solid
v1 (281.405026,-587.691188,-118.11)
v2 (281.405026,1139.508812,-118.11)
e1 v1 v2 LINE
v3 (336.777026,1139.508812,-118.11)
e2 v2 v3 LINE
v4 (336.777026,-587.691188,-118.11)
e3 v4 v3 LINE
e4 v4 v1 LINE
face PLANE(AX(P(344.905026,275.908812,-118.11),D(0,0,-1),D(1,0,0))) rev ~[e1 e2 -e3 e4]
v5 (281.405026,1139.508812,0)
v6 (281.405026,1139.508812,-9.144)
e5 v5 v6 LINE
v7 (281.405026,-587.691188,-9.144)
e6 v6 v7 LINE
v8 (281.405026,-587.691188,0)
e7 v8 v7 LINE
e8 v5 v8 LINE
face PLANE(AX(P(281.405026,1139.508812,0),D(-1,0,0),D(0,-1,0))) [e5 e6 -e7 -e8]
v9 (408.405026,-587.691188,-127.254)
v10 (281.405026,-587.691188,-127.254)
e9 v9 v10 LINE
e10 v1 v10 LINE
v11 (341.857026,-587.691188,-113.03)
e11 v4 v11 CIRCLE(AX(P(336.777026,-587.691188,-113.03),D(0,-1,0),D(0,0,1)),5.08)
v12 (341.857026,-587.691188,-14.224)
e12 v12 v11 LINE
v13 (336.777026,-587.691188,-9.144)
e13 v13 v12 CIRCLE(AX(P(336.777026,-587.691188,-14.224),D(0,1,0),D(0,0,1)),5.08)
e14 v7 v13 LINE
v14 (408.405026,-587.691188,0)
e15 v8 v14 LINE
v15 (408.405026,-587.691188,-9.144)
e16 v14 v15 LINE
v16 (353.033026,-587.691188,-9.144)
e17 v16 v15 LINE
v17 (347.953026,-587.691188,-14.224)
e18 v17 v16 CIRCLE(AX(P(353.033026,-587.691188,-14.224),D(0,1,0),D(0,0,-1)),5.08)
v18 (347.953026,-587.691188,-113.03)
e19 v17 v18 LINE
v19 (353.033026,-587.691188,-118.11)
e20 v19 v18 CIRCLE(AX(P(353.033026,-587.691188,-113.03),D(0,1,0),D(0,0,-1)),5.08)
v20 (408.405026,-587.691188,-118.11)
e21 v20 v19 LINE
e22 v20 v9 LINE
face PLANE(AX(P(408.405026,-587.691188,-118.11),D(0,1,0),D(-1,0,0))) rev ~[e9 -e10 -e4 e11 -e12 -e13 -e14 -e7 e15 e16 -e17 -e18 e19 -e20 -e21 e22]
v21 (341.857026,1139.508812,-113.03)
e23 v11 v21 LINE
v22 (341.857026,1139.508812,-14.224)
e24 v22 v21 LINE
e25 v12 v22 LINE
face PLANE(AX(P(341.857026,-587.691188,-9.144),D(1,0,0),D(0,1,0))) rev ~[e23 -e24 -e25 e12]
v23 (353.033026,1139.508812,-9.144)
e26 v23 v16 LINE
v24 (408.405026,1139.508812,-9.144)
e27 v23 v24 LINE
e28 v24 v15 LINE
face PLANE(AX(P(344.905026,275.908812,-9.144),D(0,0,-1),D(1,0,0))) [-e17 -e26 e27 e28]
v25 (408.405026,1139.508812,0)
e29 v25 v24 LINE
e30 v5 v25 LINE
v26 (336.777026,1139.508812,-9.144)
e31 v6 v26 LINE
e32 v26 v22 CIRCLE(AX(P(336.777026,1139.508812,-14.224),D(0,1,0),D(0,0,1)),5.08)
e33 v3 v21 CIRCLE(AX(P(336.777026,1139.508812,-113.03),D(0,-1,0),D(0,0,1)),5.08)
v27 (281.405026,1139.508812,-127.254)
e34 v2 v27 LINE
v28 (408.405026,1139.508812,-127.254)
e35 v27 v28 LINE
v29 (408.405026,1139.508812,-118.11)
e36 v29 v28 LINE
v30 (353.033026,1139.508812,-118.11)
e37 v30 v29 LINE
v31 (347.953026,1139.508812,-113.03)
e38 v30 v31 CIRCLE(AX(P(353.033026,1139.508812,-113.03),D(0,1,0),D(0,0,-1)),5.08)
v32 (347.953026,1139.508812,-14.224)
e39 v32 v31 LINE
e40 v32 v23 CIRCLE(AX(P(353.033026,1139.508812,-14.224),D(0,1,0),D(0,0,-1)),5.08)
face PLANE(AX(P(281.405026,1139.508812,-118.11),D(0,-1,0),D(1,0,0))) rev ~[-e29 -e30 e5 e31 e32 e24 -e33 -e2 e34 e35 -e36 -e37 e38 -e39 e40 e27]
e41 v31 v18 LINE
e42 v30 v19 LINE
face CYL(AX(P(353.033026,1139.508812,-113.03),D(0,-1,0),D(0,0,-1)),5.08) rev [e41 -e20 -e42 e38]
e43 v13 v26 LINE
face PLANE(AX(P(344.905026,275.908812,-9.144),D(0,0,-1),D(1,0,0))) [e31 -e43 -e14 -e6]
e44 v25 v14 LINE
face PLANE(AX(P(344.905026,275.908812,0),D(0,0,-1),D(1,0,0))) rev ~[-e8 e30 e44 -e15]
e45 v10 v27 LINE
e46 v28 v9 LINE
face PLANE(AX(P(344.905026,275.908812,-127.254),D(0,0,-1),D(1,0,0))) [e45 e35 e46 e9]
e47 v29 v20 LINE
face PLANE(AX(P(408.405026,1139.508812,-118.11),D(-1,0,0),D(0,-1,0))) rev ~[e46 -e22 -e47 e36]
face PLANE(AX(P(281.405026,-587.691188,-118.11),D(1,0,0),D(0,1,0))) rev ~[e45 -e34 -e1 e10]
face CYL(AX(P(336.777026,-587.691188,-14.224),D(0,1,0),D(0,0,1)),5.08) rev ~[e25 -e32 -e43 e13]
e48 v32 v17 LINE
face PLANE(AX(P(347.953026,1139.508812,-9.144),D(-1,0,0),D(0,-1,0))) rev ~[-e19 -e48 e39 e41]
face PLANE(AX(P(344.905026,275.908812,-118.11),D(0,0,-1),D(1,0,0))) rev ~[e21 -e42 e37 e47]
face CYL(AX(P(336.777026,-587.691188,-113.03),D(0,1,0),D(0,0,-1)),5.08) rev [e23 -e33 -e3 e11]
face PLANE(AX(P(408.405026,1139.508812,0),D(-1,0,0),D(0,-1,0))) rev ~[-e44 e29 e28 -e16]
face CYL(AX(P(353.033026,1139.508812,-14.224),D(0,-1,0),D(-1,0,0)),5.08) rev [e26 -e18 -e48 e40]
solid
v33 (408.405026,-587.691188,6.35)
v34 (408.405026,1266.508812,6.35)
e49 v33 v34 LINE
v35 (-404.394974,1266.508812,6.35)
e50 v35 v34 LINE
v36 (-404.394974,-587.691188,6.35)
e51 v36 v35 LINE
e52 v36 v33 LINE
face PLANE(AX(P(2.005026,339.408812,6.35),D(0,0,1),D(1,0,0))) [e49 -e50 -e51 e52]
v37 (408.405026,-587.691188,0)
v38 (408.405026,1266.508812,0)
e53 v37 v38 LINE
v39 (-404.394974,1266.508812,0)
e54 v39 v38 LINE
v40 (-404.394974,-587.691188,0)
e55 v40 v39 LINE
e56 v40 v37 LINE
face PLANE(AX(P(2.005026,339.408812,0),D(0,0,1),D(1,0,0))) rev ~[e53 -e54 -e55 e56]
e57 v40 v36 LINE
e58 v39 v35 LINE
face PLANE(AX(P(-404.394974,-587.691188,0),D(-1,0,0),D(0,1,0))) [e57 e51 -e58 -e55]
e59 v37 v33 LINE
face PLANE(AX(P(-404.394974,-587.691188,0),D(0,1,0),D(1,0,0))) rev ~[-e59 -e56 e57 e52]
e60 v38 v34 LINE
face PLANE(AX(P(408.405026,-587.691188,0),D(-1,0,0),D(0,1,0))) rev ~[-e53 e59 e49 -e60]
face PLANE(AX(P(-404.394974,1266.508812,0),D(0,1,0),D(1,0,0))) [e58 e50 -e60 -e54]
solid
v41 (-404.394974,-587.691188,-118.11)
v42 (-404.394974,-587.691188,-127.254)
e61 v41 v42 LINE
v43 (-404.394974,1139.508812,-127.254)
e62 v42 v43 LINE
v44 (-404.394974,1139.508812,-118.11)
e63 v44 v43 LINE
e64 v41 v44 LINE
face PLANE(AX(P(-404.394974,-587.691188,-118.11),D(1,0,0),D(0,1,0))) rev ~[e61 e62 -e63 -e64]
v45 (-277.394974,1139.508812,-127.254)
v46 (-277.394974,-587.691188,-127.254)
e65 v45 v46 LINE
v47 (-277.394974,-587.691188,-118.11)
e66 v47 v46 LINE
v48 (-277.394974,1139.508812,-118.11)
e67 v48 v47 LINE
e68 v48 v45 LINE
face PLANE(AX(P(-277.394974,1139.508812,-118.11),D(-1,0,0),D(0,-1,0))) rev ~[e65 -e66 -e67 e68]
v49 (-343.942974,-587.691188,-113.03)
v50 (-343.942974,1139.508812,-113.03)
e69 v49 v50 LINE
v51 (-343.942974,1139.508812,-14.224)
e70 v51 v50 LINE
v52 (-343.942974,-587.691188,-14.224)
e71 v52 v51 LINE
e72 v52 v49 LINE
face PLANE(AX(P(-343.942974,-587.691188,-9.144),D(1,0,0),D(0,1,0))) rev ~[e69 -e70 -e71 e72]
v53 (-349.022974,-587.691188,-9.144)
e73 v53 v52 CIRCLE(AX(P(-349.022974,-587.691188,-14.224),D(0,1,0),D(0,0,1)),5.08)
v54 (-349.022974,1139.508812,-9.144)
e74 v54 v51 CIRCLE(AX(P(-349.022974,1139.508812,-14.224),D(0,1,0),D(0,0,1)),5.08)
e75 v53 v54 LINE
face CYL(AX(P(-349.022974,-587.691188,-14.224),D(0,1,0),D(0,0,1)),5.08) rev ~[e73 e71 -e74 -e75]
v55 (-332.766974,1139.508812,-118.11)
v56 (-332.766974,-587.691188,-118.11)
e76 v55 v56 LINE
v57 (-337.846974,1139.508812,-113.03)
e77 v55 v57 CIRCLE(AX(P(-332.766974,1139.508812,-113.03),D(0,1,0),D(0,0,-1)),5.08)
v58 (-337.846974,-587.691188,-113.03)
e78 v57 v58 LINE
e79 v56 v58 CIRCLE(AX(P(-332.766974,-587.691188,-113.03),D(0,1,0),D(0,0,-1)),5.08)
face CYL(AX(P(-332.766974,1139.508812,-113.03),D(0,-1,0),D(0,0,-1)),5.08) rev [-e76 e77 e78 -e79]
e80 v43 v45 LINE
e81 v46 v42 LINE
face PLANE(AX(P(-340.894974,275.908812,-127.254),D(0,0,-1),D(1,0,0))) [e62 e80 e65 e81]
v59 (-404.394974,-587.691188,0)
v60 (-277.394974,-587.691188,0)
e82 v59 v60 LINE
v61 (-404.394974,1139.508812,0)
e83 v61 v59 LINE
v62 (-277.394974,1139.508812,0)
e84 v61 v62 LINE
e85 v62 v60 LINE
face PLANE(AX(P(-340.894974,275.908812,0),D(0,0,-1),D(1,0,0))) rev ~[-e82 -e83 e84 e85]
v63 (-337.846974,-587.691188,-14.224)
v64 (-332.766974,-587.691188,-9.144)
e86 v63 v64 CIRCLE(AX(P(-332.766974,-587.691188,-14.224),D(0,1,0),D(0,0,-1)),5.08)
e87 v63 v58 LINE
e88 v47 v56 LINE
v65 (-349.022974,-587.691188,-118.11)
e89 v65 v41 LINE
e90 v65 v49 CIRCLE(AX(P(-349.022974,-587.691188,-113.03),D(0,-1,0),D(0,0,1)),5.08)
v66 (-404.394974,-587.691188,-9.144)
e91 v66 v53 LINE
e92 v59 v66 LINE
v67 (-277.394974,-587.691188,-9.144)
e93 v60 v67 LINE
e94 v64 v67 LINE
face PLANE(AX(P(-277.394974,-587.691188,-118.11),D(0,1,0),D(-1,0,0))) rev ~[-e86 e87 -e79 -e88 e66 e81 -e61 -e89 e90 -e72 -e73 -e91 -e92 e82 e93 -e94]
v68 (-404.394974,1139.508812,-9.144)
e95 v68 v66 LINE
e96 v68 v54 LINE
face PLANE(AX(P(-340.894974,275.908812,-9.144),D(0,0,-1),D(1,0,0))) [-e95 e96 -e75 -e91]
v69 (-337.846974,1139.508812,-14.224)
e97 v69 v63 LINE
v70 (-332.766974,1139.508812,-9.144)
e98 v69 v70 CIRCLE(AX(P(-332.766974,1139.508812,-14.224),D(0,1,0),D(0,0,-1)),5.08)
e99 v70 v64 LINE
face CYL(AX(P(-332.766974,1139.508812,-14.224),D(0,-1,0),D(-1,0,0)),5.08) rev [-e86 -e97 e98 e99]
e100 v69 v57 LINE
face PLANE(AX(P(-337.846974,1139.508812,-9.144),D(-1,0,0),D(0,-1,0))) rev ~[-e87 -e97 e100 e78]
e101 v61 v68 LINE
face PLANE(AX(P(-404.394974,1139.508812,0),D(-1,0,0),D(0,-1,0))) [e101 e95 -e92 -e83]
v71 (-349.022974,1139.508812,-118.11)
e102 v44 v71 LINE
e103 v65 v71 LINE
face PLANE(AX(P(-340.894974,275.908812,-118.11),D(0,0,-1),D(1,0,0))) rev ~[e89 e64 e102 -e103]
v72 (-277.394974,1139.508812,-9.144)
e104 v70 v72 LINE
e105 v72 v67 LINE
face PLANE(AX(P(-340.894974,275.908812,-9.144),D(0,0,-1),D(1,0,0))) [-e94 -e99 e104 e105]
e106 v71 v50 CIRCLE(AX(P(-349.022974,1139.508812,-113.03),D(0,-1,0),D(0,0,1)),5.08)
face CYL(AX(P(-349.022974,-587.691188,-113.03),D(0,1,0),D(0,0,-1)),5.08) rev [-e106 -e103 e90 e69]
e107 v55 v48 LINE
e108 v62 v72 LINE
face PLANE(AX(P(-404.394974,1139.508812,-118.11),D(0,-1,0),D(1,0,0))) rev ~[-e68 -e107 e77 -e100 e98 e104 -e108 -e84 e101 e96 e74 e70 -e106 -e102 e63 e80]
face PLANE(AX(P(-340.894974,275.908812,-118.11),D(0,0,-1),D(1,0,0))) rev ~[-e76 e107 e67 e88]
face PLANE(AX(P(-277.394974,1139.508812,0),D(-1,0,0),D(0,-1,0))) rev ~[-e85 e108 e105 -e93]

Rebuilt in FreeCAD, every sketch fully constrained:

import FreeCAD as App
import Part
import Sketcher
from FreeCAD import Vector
Q = App.Units.Quantity


def edges_at(feature, points):
    """Names of the edges that pass closest to the given points."""
    edges = feature.Shape.Edges
    near = lambda p: min(range(len(edges)), key=lambda i: edges[i].distToShape(Part.Vertex(*p))[0])
    return sorted({f"Edge{near(p) + 1}" for p in points})


def add_polygon(sketch, points):
    """Adds a closed chain of lines whose ends are joined by coincident constraints."""
    first, n = sketch.GeometryCount, len(points)
    for a, b in zip(points, points[1:] + points[:1]):
        sketch.addGeometry(Part.LineSegment(App.Vector(*a, 0), App.Vector(*b, 0)), False)
    for i in range(n):
        sketch.addConstraint(Sketcher.Constraint("Coincident", first + i, 2, first + (i + 1) % n, 1))

doc = App.newDocument("Part")
body = doc.addObject("PartDesign::Body", "Body")

sketch1 = body.newObject("Sketcher::SketchObject", "Sketch")
sketch1.AttachmentSupport = (doc.getObject("XY_Plane"), [""])
sketch1.MapMode = "FlatFace"
add_polygon(sketch1, [(-404, 1267), (-404, -588), (408, -588), (408, 1267)])
sketch1.addConstraint([
    Sketcher.Constraint("Vertical", 0),
    Sketcher.Constraint("Horizontal", 1),
    Sketcher.Constraint("Vertical", 2),
    Sketcher.Constraint("Horizontal", 3),
    Sketcher.Constraint("DistanceX", 1, 1, 1, 2, Q("32 in")),
    Sketcher.Constraint("DistanceY", 0, 2, 0, 1, Q("73 in")),
    Sketcher.Constraint("DistanceY", 0, 2, -1, 1, Q("587.691188 mm")),
    Sketcher.Constraint("DistanceX", 0, 2, -1, 1, Q("404.394974 mm")),
])
pad1 = body.newObject("PartDesign::Pad", "Pad")
pad1.Profile = sketch1
pad1.Length = Q("0.25 in")
body2 = doc.addObject("PartDesign::Body", "Body001")

sketch2 = body2.newObject("Sketcher::SketchObject", "Sketch001")
sketch2.AttachmentSupport = (doc.getObject("XY_Plane001"), [""])
sketch2.MapMode = "FlatFace"
add_polygon(sketch2, [(-404, -588), (-404, 1140), (-277, 1140), (-277, -588)])
sketch2.addConstraint([
    Sketcher.Constraint("Vertical", 0),
    Sketcher.Constraint("Horizontal", 1),
    Sketcher.Constraint("Vertical", 2),
    Sketcher.Constraint("Horizontal", 3),
    Sketcher.Constraint("DistanceX", 1, 1, 1, 2, Q("5 in")),
    Sketcher.Constraint("DistanceY", 0, 1, 0, 2, Q("68 in")),
    Sketcher.Constraint("DistanceY", -1, 1, 0, 2, Q("1139.508812 mm")),
    Sketcher.Constraint("DistanceX", 0, 2, -1, 1, Q("404.394974 mm")),
])
pad2 = body2.newObject("PartDesign::Pad", "Pad001")
pad2.Profile = sketch2
pad2.Length = Q("0.36 in")
pad2.Reversed = True

sketch3 = body2.newObject("Sketcher::SketchObject", "Sketch002")
sketch3.AttachmentSupport = (doc.getObject("XY_Plane001"), [""])
sketch3.MapMode = "FlatFace"
sketch3.AttachmentOffset = App.Placement(Vector(0, 0, -0.36 * 25.4), App.Rotation())
add_polygon(sketch3, [(-338, -588), (-344, -588), (-344, 1140), (-338, 1140)])
sketch3.addConstraint([
    Sketcher.Constraint("Horizontal", 0),
    Sketcher.Constraint("Vertical", 1),
    Sketcher.Constraint("Horizontal", 2),
    Sketcher.Constraint("Vertical", 3),
    Sketcher.Constraint("DistanceY", 1, 1, 1, 2, Q("68 in")),
    Sketcher.Constraint("DistanceX", 0, 2, 0, 1, Q("0.24 in")),
    Sketcher.Constraint("DistanceY", 0, 2, -1, 1, Q("587.691188 mm")),
    Sketcher.Constraint("DistanceX", 0, 2, -1, 1, Q("343.942974 mm")),
])
pad3 = body2.newObject("PartDesign::Pad", "Pad002")
pad3.Profile = sketch3
pad3.Length = Q("4.29 in")
pad3.Reversed = True

sketch4 = body2.newObject("Sketcher::SketchObject", "Sketch003")
sketch4.AttachmentSupport = (doc.getObject("XY_Plane001"), [""])
sketch4.MapMode = "FlatFace"
sketch4.AttachmentOffset = App.Placement(Vector(0, 0, -4.65 * 25.4), App.Rotation())
add_polygon(sketch4, [(-277, -588), (-404, -588), (-404, 1140), (-277, 1140)])
sketch4.addConstraint([
    Sketcher.Constraint("Horizontal", 0),
    Sketcher.Constraint("Vertical", 1),
    Sketcher.Constraint("Horizontal", 2),
    Sketcher.Constraint("Vertical", 3),
    Sketcher.Constraint("DistanceX", 0, 2, 0, 1, Q("5 in")),
    Sketcher.Constraint("DistanceY", 1, 1, 1, 2, Q("68 in")),
    Sketcher.Constraint("DistanceY", 0, 2, -1, 1, Q("587.691188 mm")),
    Sketcher.Constraint("DistanceX", 0, 2, -1, 1, Q("404.394974 mm")),
])
pad4 = body2.newObject("PartDesign::Pad", "Pad003")
pad4.Profile = sketch4
pad4.Length = Q("0.36 in")
pad4.Reversed = True
doc.recompute()

fillet = body2.newObject("PartDesign::Fillet", "Fillet")
fillet.Base = (pad4, edges_at(pad4, [
    (-343.943, 275.909, -9.144),
    (-343.943, 275.909, -118.11),
    (-337.847, 275.909, -118.11),
    (-337.847, 275.909, -9.144),
]))
fillet.Radius = Q("0.2 in")
body3 = doc.addObject("PartDesign::Body", "Body002")

sketch5 = body3.newObject("Sketcher::SketchObject", "Sketch004")
sketch5.AttachmentSupport = (doc.getObject("XY_Plane002"), [""])
sketch5.MapMode = "FlatFace"
add_polygon(sketch5, [(281, -588), (281, 1140), (408, 1140), (408, -588)])
sketch5.addConstraint([
    Sketcher.Constraint("Vertical", 0),
    Sketcher.Constraint("Horizontal", 1),
    Sketcher.Constraint("Vertical", 2),
    Sketcher.Constraint("Horizontal", 3),
    Sketcher.Constraint("DistanceX", 1, 1, 1, 2, Q("5 in")),
    Sketcher.Constraint("DistanceY", 0, 1, 0, 2, Q("68 in")),
    Sketcher.Constraint("DistanceY", -1, 1, 0, 2, Q("1139.508812 mm")),
    Sketcher.Constraint("DistanceX", -1, 1, 0, 2, Q("281.405026 mm")),
])
pad5 = body3.newObject("PartDesign::Pad", "Pad004")
pad5.Profile = sketch5
pad5.Length = Q("0.36 in")
pad5.Reversed = True

sketch6 = body3.newObject("Sketcher::SketchObject", "Sketch005")
sketch6.AttachmentSupport = (doc.getObject("XY_Plane002"), [""])
sketch6.MapMode = "FlatFace"
sketch6.AttachmentOffset = App.Placement(Vector(0, 0, -0.36 * 25.4), App.Rotation())
add_polygon(sketch6, [(348, -588), (342, -588), (342, 1140), (348, 1140)])
sketch6.addConstraint([
    Sketcher.Constraint("Horizontal", 0),
    Sketcher.Constraint("Vertical", 1),
    Sketcher.Constraint("Horizontal", 2),
    Sketcher.Constraint("Vertical", 3),
    Sketcher.Constraint("DistanceY", 1, 1, 1, 2, Q("68 in")),
    Sketcher.Constraint("DistanceX", 0, 2, 0, 1, Q("0.24 in")),
    Sketcher.Constraint("DistanceY", 0, 2, -1, 1, Q("587.691188 mm")),
    Sketcher.Constraint("DistanceX", -1, 1, 0, 2, Q("341.857026 mm")),
])
pad6 = body3.newObject("PartDesign::Pad", "Pad005")
pad6.Profile = sketch6
pad6.Length = Q("4.29 in")
pad6.Reversed = True

sketch7 = body3.newObject("Sketcher::SketchObject", "Sketch006")
sketch7.AttachmentSupport = (doc.getObject("XY_Plane002"), [""])
sketch7.MapMode = "FlatFace"
sketch7.AttachmentOffset = App.Placement(Vector(0, 0, -4.65 * 25.4), App.Rotation())
add_polygon(sketch7, [(408, -588), (281, -588), (281, 1140), (408, 1140)])
sketch7.addConstraint([
    Sketcher.Constraint("Horizontal", 0),
    Sketcher.Constraint("Vertical", 1),
    Sketcher.Constraint("Horizontal", 2),
    Sketcher.Constraint("Vertical", 3),
    Sketcher.Constraint("DistanceX", 0, 2, 0, 1, Q("5 in")),
    Sketcher.Constraint("DistanceY", 1, 1, 1, 2, Q("68 in")),
    Sketcher.Constraint("DistanceY", 0, 2, -1, 1, Q("587.691188 mm")),
    Sketcher.Constraint("DistanceX", -1, 1, 0, 2, Q("281.405026 mm")),
])
pad7 = body3.newObject("PartDesign::Pad", "Pad006")
pad7.Profile = sketch7
pad7.Length = Q("0.36 in")
pad7.Reversed = True
doc.recompute()

fillet2 = body3.newObject("PartDesign::Fillet", "Fillet001")
fillet2.Base = (pad7, edges_at(pad7, [
    (347.953, 275.909, -9.144),
    (347.953, 275.909, -118.11),
    (341.857, 275.909, -9.144),
    (341.857, 275.909, -118.11),
]))
fillet2.Radius = Q("0.2 in")

doc.recompute()
